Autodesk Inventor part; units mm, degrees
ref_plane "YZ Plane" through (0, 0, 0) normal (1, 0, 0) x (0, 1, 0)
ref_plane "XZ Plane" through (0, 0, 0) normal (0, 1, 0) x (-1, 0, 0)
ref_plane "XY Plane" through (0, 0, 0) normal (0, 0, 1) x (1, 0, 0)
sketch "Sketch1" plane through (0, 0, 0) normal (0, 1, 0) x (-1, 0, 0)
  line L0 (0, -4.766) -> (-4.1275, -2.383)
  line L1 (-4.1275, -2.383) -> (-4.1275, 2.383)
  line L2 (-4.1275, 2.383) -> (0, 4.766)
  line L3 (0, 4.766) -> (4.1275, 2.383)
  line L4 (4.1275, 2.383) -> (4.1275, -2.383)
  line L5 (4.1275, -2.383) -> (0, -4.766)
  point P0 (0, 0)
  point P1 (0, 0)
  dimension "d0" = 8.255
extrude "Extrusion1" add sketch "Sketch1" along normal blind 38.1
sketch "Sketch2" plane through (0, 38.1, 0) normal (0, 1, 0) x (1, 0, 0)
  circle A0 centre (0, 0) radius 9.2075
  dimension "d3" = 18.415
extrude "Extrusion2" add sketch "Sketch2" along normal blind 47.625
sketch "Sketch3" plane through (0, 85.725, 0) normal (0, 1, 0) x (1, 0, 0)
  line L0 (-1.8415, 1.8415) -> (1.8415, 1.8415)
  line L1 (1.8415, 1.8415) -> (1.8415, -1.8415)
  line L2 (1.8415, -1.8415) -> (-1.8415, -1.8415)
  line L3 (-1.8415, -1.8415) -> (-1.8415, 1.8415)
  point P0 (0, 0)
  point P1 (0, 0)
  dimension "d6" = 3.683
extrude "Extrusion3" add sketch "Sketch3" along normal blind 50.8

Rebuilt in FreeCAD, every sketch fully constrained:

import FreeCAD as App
import Part
import Sketcher

V = App.Vector
Q = App.Units.Quantity


def add_polygon(sketch, points):
    """Adds a closed chain of lines whose ends are joined by coincident constraints."""
    first, n = sketch.GeometryCount, len(points)
    for a, b in zip(points, points[1:] + points[:1]):
        sketch.addGeometry(Part.LineSegment(App.Vector(*a, 0), App.Vector(*b, 0)), False)
    for i in range(n):
        sketch.addConstraint(Sketcher.Constraint("Coincident", first + i, 2, first + (i + 1) % n, 1))

doc = App.newDocument("Part")
body = doc.addObject("PartDesign::Body", "Body")

# Sketch on XZ plane
sketch1 = body.newObject("Sketcher::SketchObject", "Sketch")
sketch1.AttachmentSupport = (doc.getObject("XZ_Plane"), [""])
sketch1.MapMode = "FlatFace"
add_polygon(sketch1, [(4.1, -2.4), (0, -4.8), (-4.1, -2.4), (-4.1, 2.4), (0, 4.8), (4.1, 2.4)])  # lines 0-5
sketch1.addConstraint([
    Sketcher.Constraint("Vertical", 2),
    Sketcher.Constraint("Vertical", 5),
    Sketcher.Constraint("Symmetric", 0, 2, 3, 2, -1, 1),
    Sketcher.Constraint("Symmetric", 1, 2, 4, 2, -1, 1),
    Sketcher.Constraint("PointOnObject", 0, 2, -2),
    Sketcher.Constraint("Parallel", 0, 3),
    Sketcher.Constraint("Horizontal", 2, 2, 4, 2),
    Sketcher.Constraint("Angle", 0, Q("-150.0001 deg")),
    Sketcher.Constraint("DistanceX", 2, 2, 4, 2, Q("0.325 in")),
    Sketcher.Constraint("DistanceY", 2, 1, 2, 2, Q("4.766 mm")),
])
pad1 = body.newObject("PartDesign::Pad", "Pad")
pad1.Profile = sketch1
pad1.Length = Q("1.5 in")
pad1.Reversed = True

# Sketch on XZ plane
sketch2 = body.newObject("Sketcher::SketchObject", "Sketch001")
sketch2.AttachmentSupport = (doc.getObject("XZ_Plane"), [""])
sketch2.MapMode = "FlatFace"
sketch2.AttachmentOffset = App.Placement(V(0, 0, -1.5 * 25.4), App.Rotation())
sketch2.addGeometry(Part.Circle(V(0, 0, 0), V(0, 0, 1), 9), False)
sketch2.addConstraint([
    Sketcher.Constraint("Coincident", 0, 3, -1, 1),
    Sketcher.Constraint("Diameter", 0, Q("0.725 in")),
])
pad2 = body.newObject("PartDesign::Pad", "Pad001")
pad2.Profile = sketch2
pad2.Length = Q("1.875 in")
pad2.Reversed = True

# Sketch on XZ plane
sketch3 = body.newObject("Sketcher::SketchObject", "Sketch002")
sketch3.AttachmentSupport = (doc.getObject("XZ_Plane"), [""])
sketch3.MapMode = "FlatFace"
sketch3.AttachmentOffset = App.Placement(V(0, 0, -3.375 * 25.4), App.Rotation())
add_polygon(sketch3, [(1.8, -1.8), (-1.8, -1.8), (-1.8, 1.8), (1.8, 1.8)])  # lines 0-3
sketch3.addConstraint([
    Sketcher.Constraint("Horizontal", 0),
    Sketcher.Constraint("Vertical", 1),
    Sketcher.Constraint("Horizontal", 2),
    Sketcher.Constraint("Vertical", 3),
    Sketcher.Constraint("Symmetric", 0, 2, 2, 2, -1, 1),
    Sketcher.Constraint("Equal", 2, 1),
    Sketcher.Constraint("DistanceX", 0, 2, 0, 1, Q("0.145 in")),
])
pad3 = body.newObject("PartDesign::Pad", "Pad002")
pad3.Profile = sketch3
pad3.Length = Q("2 in")
pad3.Reversed = True

doc.recompute()
